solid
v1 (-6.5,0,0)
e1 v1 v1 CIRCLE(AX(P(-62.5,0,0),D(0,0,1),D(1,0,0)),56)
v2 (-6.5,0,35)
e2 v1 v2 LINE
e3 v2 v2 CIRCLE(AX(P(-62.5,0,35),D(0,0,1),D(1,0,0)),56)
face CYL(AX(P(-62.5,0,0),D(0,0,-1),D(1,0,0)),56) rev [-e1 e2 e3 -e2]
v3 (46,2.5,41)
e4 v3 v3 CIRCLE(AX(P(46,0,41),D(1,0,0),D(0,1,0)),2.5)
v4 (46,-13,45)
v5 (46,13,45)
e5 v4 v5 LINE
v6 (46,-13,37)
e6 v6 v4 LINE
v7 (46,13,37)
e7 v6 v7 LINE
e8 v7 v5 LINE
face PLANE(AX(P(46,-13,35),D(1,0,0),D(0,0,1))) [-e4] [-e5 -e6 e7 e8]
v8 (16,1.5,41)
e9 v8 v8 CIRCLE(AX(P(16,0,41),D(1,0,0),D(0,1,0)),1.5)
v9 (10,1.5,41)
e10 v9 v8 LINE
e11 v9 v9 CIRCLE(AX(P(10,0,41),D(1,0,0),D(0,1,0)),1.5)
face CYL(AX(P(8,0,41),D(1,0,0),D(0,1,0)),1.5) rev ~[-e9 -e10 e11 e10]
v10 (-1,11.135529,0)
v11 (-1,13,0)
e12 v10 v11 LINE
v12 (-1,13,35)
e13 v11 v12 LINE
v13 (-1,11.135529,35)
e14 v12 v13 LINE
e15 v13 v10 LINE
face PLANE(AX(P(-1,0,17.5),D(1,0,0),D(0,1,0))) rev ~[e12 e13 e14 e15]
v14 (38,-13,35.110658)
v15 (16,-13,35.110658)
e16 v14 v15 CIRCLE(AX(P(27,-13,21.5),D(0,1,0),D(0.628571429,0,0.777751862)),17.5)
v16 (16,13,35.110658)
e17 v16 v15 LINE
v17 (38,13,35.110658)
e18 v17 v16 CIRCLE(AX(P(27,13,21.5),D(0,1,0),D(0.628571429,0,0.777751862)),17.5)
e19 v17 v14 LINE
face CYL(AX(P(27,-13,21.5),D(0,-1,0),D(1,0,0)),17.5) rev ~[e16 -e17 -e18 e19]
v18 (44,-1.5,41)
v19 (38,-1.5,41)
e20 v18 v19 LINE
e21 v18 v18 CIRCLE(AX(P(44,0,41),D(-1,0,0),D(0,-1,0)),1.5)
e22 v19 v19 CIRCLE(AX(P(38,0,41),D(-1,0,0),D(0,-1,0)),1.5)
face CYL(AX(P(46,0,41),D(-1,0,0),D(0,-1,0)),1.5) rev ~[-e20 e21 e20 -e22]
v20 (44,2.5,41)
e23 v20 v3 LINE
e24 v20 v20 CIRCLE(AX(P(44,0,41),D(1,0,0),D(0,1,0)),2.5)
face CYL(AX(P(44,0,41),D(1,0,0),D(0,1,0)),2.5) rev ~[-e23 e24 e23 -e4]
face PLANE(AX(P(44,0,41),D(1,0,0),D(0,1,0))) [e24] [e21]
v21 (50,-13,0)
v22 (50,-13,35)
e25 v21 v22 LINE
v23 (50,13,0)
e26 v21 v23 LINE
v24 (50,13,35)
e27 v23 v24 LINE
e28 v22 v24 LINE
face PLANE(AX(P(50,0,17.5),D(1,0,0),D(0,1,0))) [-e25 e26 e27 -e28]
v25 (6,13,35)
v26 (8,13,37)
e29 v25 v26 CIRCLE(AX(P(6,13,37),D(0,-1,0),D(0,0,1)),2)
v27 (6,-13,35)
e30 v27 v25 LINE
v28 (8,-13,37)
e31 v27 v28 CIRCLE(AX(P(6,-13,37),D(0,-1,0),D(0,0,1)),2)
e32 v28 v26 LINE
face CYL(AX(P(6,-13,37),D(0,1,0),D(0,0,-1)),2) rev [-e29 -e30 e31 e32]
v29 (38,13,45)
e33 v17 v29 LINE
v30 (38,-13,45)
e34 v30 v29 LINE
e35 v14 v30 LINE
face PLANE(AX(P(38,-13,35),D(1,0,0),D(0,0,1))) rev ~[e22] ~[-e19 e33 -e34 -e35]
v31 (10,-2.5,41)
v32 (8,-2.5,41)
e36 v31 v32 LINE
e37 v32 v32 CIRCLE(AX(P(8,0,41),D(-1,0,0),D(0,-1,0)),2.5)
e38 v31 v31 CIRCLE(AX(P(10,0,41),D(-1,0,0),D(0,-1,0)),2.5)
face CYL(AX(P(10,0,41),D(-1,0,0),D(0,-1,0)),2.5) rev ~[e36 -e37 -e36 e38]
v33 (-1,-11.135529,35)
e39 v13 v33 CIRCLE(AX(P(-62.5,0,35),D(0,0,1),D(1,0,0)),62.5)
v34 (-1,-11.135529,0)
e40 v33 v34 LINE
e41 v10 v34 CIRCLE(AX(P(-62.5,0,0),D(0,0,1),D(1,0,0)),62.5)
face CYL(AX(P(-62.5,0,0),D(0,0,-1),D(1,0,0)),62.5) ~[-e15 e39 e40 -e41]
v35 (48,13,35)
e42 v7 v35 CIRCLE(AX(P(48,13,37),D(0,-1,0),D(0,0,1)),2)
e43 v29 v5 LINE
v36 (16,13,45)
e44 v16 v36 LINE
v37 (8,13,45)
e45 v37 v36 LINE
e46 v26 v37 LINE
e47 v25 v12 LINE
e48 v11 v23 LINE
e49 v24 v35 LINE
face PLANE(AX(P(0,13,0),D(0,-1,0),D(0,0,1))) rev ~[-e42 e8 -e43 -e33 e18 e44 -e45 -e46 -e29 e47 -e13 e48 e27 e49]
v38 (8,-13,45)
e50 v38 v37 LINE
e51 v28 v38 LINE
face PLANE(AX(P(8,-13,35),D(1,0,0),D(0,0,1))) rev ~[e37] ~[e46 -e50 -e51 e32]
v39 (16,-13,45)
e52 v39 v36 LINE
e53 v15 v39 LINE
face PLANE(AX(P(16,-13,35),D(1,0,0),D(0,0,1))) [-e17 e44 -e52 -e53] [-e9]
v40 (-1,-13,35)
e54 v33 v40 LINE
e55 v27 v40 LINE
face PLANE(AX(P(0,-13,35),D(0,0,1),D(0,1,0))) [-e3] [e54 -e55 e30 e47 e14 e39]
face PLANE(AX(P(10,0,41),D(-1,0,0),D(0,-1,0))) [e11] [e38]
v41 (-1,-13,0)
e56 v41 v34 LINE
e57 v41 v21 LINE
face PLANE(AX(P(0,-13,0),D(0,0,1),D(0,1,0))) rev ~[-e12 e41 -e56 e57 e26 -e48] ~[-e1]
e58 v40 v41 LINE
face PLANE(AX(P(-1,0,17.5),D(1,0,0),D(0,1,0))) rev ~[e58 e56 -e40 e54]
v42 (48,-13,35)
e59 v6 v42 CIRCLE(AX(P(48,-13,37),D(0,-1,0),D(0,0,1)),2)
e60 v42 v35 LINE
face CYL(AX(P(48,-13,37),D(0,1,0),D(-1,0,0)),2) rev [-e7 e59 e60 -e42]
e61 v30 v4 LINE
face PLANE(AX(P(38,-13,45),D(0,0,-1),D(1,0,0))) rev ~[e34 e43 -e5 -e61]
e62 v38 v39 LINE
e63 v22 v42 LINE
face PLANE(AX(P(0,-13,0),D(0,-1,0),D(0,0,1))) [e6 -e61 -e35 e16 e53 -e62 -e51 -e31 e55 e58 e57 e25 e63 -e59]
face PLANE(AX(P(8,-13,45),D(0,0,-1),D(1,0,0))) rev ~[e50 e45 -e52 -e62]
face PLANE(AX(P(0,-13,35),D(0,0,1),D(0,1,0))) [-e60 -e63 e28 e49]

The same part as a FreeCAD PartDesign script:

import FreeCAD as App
import Part
import Sketcher

V = App.Vector
Q = App.Units.Quantity


def edges_at(feature, points):
    """Names of the edges that pass closest to the given points."""
    edges = feature.Shape.Edges
    near = lambda p: min(range(len(edges)), key=lambda i: edges[i].distToShape(Part.Vertex(*p))[0])
    return sorted({f"Edge{near(p) + 1}" for p in points})


def add_polygon(sketch, points):
    """Adds a closed chain of lines whose ends are joined by coincident constraints."""
    first, n = sketch.GeometryCount, len(points)
    for a, b in zip(points, points[1:] + points[:1]):
        sketch.addGeometry(Part.LineSegment(App.Vector(*a, 0), App.Vector(*b, 0)), False)
    for i in range(n):
        sketch.addConstraint(Sketcher.Constraint("Coincident", first + i, 2, first + (i + 1) % n, 1))

doc = App.newDocument("Part")
body = doc.addObject("PartDesign::Body", "Body")

# Sketch on XY plane
sketch1 = body.newObject("Sketcher::SketchObject", "Sketch")
sketch1.AttachmentSupport = (doc.getObject("XY_Plane"), [""])
sketch1.MapMode = "FlatFace"
sketch1.addGeometry([
    Part.Circle(V(-62, 0, 0), V(0, 0, 1), 62),
    Part.Circle(V(-62, 0, 0), V(0, 0, 1), 56),
], False)
sketch1.addConstraint([
    Sketcher.Constraint("Coincident", 1, 3, 0, 3),
    Sketcher.Constraint("PointOnObject", 0, 3, -1),
    Sketcher.Constraint("Diameter", 0, Q("125 mm")),
    Sketcher.Constraint("Diameter", 1, Q("112 mm")),
    Sketcher.Constraint("DistanceX", 0, 3, -1, 1, Q("62.5 mm")),
])
pad1 = body.newObject("PartDesign::Pad", "Pad")
pad1.Profile = sketch1
pad1.Length = 35

# Sketch on YZ plane
sketch2 = body.newObject("Sketcher::SketchObject", "Sketch001")
sketch2.AttachmentSupport = (doc.getObject("YZ_Plane"), [""])
sketch2.MapMode = "FlatFace"
add_polygon(sketch2, [(-13, 0), (13, 0), (13, 35), (-13, 35)])  # lines 0-3
sketch2.addConstraint([
    Sketcher.Constraint("Horizontal", 0),
    Sketcher.Constraint("Vertical", 1),
    Sketcher.Constraint("Horizontal", 2),
    Sketcher.Constraint("Vertical", 3),
    Sketcher.Constraint("Symmetric", 0, 2, 3, 2, -1, 1),
    Sketcher.Constraint("DistanceX", 0, 1, 0, 2, Q("26 mm")),
    Sketcher.Constraint("DistanceY", 1, 1, 1, 2, Q("35 mm")),
])
pad2 = body.newObject("PartDesign::Pad", "Pad001")
pad2.Profile = sketch2
pad2.Length = 1
pad2.Reversed = True

# Sketch on YZ plane
sketch3 = body.newObject("Sketcher::SketchObject", "Sketch002")
sketch3.AttachmentSupport = (doc.getObject("YZ_Plane"), [""])
sketch3.MapMode = "FlatFace"
add_polygon(sketch3, [(-13, 35), (-13, 0), (13, 0), (13, 35)])  # lines 0-3
sketch3.addConstraint([
    Sketcher.Constraint("Vertical", 0),
    Sketcher.Constraint("Horizontal", 1),
    Sketcher.Constraint("Vertical", 2),
    Sketcher.Constraint("Horizontal", 3),
    Sketcher.Constraint("Symmetric", 0, 2, 1, 2, -1, 1),
    Sketcher.Constraint("DistanceX", 1, 1, 1, 2, Q("26 mm")),
    Sketcher.Constraint("DistanceY", 0, 2, 0, 1, Q("35 mm")),
])
pad3 = body.newObject("PartDesign::Pad", "Pad002")
pad3.Profile = sketch3
pad3.Length = 50

# Sketch on XZ plane
sketch4 = body.newObject("Sketcher::SketchObject", "Sketch003")
sketch4.AttachmentSupport = (doc.getObject("XZ_Plane"), [""])
sketch4.MapMode = "FlatFace"
sketch4.AttachmentOffset = App.Placement(V(0, 0, 13), App.Rotation())
add_polygon(sketch4, [(38, 45), (38, 35), (46, 35), (46, 45)])  # lines 0-3
add_polygon(sketch4, [(8, 45), (8, 35), (16, 35), (16, 45)])  # lines 4-7
sketch4.addConstraint([
    Sketcher.Constraint("Vertical", 0),
    Sketcher.Constraint("Horizontal", 1),
    Sketcher.Constraint("Vertical", 2),
    Sketcher.Constraint("Horizontal", 3),
    Sketcher.Constraint("Vertical", 4),
    Sketcher.Constraint("Horizontal", 5),
    Sketcher.Constraint("Vertical", 6),
    Sketcher.Constraint("Horizontal", 7),
    Sketcher.Constraint("Horizontal", 1, 2, 4, 2),
    Sketcher.Constraint("Horizontal", 3, 2, 6, 2),
    Sketcher.Constraint("Equal", 3, 5),
    Sketcher.Constraint("DistanceX", 1, 1, 1, 2, Q("8 mm")),
    Sketcher.Constraint("DistanceY", 0, 2, 0, 1, Q("10 mm")),
    Sketcher.Constraint("DistanceX", -1, 1, 0, 2, Q("38 mm")),
    Sketcher.Constraint("DistanceY", -1, 1, 0, 2, Q("35 mm")),
    Sketcher.Constraint("DistanceX", -1, 1, 4, 2, Q("8 mm")),
])
pad4 = body.newObject("PartDesign::Pad", "Pad003")
pad4.Profile = sketch4
pad4.Length = 26
pad4.Reversed = True

# Sketch on XZ plane
sketch5 = body.newObject("Sketcher::SketchObject", "Sketch004")
sketch5.AttachmentSupport = (doc.getObject("XZ_Plane"), [""])
sketch5.MapMode = "FlatFace"
sketch5.AttachmentOffset = App.Placement(V(0, 0, 13), App.Rotation())
sketch5.addGeometry(Part.Circle(V(27, 22, 0), V(0, 0, 1), 18), False)
sketch5.addConstraint([
    Sketcher.Constraint("Diameter", 0, Q("35 mm")),
    Sketcher.Constraint("DistanceX", -1, 1, 0, 3, Q("27 mm")),
    Sketcher.Constraint("DistanceY", -1, 1, 0, 3, Q("21.5 mm")),
])
pocket1 = body.newObject("PartDesign::Pocket", "Pocket")
pocket1.Profile = sketch5
pocket1.Length = 50
doc.recompute()

fillet = body.newObject("PartDesign::Fillet", "Fillet")
fillet.Base = (pocket1, edges_at(pocket1, [(46, 0, 35), (8, 0, 35)]))
fillet.Radius = 2

# Sketch on YZ plane
sketch6 = body.newObject("Sketcher::SketchObject", "Sketch005")
sketch6.AttachmentSupport = (doc.getObject("YZ_Plane"), [""])
sketch6.MapMode = "FlatFace"
sketch6.AttachmentOffset = App.Placement(V(0, 0, 46), App.Rotation())
sketch6.addGeometry(Part.Circle(V(0, 41, 0), V(0, 0, 1), 1.5), False)
sketch6.addConstraint([
    Sketcher.Constraint("PointOnObject", 0, 3, -2),
    Sketcher.Constraint("Diameter", 0, Q("3 mm")),
    Sketcher.Constraint("DistanceY", -1, 1, 0, 3, Q("41 mm")),
])
doc.recompute()
hole = body.newObject("PartDesign::Hole", "Hole")
hole.Profile = sketch6
hole.ThreadType = "None"
hole.Diameter = 3
hole.DepthType = "Dimension"
hole.Depth = 8
hole.DrillPoint = "Flat"
hole.HoleCutType = "Counterbore"
hole.HoleCutDiameter = 5
hole.HoleCutDepth = 2

# Sketch on YZ plane
sketch7 = body.newObject("Sketcher::SketchObject", "Sketch006")
sketch7.AttachmentSupport = (doc.getObject("YZ_Plane"), [""])
sketch7.MapMode = "FlatFace"
sketch7.AttachmentOffset = App.Placement(V(0, 0, 8), App.Rotation())
sketch7.addGeometry(Part.Circle(V(0, 41, 0), V(0, 0, 1), 1.5), False)
sketch7.addConstraint([
    Sketcher.Constraint("PointOnObject", 0, 3, -2),
    Sketcher.Constraint("Diameter", 0, Q("3 mm")),
    Sketcher.Constraint("DistanceY", -1, 1, 0, 3, Q("41 mm")),
])
doc.recompute()
hole2 = body.newObject("PartDesign::Hole", "Hole001")
hole2.Profile = sketch7
hole2.ThreadType = "None"
hole2.Diameter = 3
hole2.DepthType = "Dimension"
hole2.Depth = 8
hole2.DrillPoint = "Flat"
hole2.HoleCutType = "Counterbore"
hole2.HoleCutDiameter = 5
hole2.HoleCutDepth = 2
hole2.Reversed = True

doc.recompute()
